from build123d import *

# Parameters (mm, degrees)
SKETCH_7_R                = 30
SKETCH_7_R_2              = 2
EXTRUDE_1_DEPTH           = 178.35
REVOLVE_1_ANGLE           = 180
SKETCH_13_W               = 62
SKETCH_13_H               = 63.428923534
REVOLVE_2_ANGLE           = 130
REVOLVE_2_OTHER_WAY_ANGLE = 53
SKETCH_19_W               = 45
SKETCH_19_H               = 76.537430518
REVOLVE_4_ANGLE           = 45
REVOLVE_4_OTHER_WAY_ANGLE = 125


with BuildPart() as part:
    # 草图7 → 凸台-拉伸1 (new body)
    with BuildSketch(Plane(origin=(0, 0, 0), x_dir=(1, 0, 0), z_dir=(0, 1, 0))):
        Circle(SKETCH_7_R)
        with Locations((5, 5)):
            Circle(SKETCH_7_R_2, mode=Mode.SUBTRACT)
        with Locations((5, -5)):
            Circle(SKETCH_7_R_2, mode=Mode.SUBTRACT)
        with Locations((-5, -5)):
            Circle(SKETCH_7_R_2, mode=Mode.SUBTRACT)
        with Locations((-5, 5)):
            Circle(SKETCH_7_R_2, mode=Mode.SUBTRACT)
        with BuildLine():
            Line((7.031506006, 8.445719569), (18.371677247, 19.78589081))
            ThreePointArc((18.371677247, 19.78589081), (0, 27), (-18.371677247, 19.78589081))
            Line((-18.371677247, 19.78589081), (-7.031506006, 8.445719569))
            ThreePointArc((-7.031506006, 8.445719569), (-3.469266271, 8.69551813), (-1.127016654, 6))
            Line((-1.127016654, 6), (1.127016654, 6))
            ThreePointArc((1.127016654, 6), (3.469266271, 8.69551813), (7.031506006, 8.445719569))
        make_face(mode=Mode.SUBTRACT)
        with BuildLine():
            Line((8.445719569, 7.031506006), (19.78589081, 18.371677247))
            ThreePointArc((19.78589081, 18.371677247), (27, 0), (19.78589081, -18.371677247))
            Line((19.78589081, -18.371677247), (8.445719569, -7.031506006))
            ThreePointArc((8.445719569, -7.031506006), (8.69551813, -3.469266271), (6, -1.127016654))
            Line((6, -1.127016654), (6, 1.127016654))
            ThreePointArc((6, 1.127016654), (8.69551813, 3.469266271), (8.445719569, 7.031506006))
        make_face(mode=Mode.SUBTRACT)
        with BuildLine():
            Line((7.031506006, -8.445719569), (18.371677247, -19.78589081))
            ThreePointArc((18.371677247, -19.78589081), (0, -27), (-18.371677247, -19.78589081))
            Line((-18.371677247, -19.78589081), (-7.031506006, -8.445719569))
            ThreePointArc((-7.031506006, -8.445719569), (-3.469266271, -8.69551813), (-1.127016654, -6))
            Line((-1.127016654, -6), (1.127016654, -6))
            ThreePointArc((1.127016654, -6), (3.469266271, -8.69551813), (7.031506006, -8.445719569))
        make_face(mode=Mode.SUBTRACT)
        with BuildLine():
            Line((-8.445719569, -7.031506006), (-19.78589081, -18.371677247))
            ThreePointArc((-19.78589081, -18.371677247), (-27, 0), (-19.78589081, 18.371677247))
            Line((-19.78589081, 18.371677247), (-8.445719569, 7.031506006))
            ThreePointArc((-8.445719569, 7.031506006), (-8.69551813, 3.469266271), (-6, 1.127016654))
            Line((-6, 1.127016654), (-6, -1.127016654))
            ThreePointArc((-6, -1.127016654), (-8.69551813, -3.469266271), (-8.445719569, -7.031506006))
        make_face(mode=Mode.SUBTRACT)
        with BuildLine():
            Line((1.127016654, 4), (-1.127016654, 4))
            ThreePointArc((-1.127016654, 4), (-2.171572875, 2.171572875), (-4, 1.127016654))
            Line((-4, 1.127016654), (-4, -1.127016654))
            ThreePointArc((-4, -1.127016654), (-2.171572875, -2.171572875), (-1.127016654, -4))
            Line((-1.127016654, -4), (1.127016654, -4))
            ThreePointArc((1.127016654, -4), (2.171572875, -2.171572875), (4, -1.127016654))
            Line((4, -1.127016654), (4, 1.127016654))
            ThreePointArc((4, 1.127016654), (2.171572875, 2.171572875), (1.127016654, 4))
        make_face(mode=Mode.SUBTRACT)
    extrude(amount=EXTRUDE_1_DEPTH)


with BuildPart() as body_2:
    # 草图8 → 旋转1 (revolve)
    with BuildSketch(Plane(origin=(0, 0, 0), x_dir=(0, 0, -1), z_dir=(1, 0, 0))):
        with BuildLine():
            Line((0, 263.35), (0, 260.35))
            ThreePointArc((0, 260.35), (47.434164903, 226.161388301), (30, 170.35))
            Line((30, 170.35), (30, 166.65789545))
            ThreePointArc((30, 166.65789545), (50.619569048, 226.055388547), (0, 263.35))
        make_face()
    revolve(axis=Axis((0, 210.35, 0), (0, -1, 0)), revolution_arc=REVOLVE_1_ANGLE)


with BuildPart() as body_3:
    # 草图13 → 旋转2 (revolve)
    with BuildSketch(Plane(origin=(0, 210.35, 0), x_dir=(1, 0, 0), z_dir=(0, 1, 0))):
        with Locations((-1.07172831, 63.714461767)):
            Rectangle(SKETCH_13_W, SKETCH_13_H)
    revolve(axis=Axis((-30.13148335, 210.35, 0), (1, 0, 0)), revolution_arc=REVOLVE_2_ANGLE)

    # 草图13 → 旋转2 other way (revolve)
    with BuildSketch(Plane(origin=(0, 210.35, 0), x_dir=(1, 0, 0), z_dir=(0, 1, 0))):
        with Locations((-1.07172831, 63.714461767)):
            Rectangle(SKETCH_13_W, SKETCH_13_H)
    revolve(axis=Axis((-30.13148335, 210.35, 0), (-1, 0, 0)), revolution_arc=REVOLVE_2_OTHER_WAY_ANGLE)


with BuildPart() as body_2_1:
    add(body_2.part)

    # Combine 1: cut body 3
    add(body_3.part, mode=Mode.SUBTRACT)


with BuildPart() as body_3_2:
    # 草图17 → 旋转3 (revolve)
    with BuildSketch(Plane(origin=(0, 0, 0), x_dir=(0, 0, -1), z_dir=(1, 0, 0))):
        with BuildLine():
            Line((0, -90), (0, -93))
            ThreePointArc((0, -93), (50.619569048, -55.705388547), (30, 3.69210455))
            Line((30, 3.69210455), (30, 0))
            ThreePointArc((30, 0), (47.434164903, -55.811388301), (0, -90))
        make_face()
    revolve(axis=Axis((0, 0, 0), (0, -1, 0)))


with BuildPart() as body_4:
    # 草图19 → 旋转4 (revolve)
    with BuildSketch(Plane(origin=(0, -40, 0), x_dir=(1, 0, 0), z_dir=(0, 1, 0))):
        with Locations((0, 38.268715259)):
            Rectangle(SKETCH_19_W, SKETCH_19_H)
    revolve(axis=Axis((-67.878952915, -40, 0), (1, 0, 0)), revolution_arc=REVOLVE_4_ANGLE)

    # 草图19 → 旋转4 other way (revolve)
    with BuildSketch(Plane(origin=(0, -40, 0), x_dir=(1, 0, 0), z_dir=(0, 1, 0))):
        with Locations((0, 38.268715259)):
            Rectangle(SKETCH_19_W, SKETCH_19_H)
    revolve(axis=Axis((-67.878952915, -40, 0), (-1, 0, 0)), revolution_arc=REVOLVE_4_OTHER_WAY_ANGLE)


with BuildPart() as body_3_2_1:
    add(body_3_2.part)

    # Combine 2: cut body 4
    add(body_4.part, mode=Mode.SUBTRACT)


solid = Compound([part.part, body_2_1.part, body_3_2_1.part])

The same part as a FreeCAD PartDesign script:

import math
import FreeCAD as App
import Part
import Sketcher
from FreeCAD import Vector

doc = App.newDocument("Part")
params = doc.addObject("Spreadsheet::Sheet", "Params")
for row, (alias, value) in enumerate([
    ("sketch1_diameter", "60 mm"),
    ("sketch1_diameter2", "4 mm"),
    ("sketch1_radius", "4 mm"),
    ("sketch1_radius2", "27 mm"),
    ("pad1_length", "178.35 mm"),
    ("sketch2_radius", "50 mm"),
    ("sketch2_radius2", "53 mm"),
    ("revolution_angle", "180 deg"),
    ("sketch3_width", "62 mm"),
    ("revolution2_angle", "130 deg"),
    ("sketch4_width", "62 mm"),
    ("revolution3_angle", "53 deg"),
    ("sketch5_radius", "53 mm"),
    ("sketch5_radius2", "50 mm"),
    ("revolution4_angle", "360 deg"),
    ("sketch6_width", "45 mm"),
    ("revolution5_angle", "45 deg"),
    ("sketch7_width", "45 mm"),
    ("revolution6_angle", "125 deg"),
], start=1):
    params.set(f"A{row}", alias)
    params.set(f"B{row}", "=" + value)
    params.setAlias(f"B{row}", alias)

body = doc.addObject("PartDesign::Body", "Body")

sketch1 = body.newObject("Sketcher::SketchObject", "Sketch")
sketch1.AttachmentSupport = (doc.getObject("XZ_Plane"), [""])
sketch1.MapMode = "FlatFace"
sketch1.addGeometry([
    Part.Circle(Vector(0, 0, 0), Vector(0, 0, 1), 30),
    Part.ArcOfCircle(Part.Circle(Vector(5, 5, 0), Vector(0, 0, 1), 4), math.radians(59), math.radians(166)),
    Part.LineSegment(Vector(7, 8.4, 0), Vector(18.4, 19.8, 0)),
    Part.ArcOfCircle(Part.Circle(Vector(0, 0, 0), Vector(0, 0, 1), 27), math.radians(47), math.radians(133)),
    Part.LineSegment(Vector(-18.4, 19.8, 0), Vector(-7, 8.4, 0)),
    Part.ArcOfCircle(Part.Circle(Vector(-5, 5, 0), Vector(0, 0, 1), 4), math.radians(14), math.radians(121)),
    Part.LineSegment(Vector(-1.1, 6, 0), Vector(1.1, 6, 0)),
    Part.Circle(Vector(-5, 5, 0), Vector(0, 0, 1), 2),
    Part.Circle(Vector(5, 5, 0), Vector(0, 0, 1), 2),
    Part.ArcOfCircle(Part.Circle(Vector(-5, 5, 0), Vector(0, 0, 1), 4), math.radians(149), math.radians(256)),
    Part.LineSegment(Vector(-8.4, 7, 0), Vector(-19.8, 18.4, 0)),
    Part.ArcOfCircle(Part.Circle(Vector(0, 0, 0), Vector(0, 0, 1), 27), math.radians(137), math.radians(223)),
    Part.LineSegment(Vector(-19.8, -18.4, 0), Vector(-8.4, -7, 0)),
    Part.ArcOfCircle(Part.Circle(Vector(-5, -5, 0), Vector(0, 0, 1), 4), math.radians(104), math.radians(211)),
    Part.LineSegment(Vector(-6, -1.1, 0), Vector(-6, 1.1, 0)),
    Part.LineSegment(Vector(-1.1, -4, 0), Vector(1.1, -4, 0)),
    Part.ArcOfCircle(Part.Circle(Vector(5, -5, 0), Vector(0, 0, 1), 4), math.radians(104), math.radians(166)),
    Part.LineSegment(Vector(4, -1.1, 0), Vector(4, 1.1, 0)),
    Part.ArcOfCircle(Part.Circle(Vector(5, 5, 0), Vector(0, 0, 1), 4), math.radians(-166), math.radians(-104)),
    Part.LineSegment(Vector(1.1, 4, 0), Vector(-1.1, 4, 0)),
    Part.ArcOfCircle(Part.Circle(Vector(-5, 5, 0), Vector(0, 0, 1), 4), math.radians(-76), math.radians(-14)),
    Part.LineSegment(Vector(-4, 1.1, 0), Vector(-4, -1.1, 0)),
    Part.ArcOfCircle(Part.Circle(Vector(-5, -5, 0), Vector(0, 0, 1), 4), math.radians(14), math.radians(76)),
    Part.Circle(Vector(-5, -5, 0), Vector(0, 0, 1), 2),
    Part.LineSegment(Vector(18.4, -19.8, 0), Vector(7, -8.4, 0)),
    Part.ArcOfCircle(Part.Circle(Vector(5, -5, 0), Vector(0, 0, 1), 4), math.radians(-166), math.radians(-59)),
    Part.LineSegment(Vector(1.1, -6, 0), Vector(-1.1, -6, 0)),
    Part.ArcOfCircle(Part.Circle(Vector(-5, -5, 0), Vector(0, 0, 1), 4), math.radians(-121), math.radians(-14)),
    Part.LineSegment(Vector(-7, -8.4, 0), Vector(-18.4, -19.8, 0)),
    Part.ArcOfCircle(Part.Circle(Vector(0, 0, 0), Vector(0, 0, 1), 27), math.radians(-133), math.radians(-47)),
    Part.Circle(Vector(5, -5, 0), Vector(0, 0, 1), 2),
    Part.ArcOfCircle(Part.Circle(Vector(5, -5, 0), Vector(0, 0, 1), 4), math.radians(-31), math.radians(76)),
    Part.LineSegment(Vector(8.4, -7, 0), Vector(19.8, -18.4, 0)),
    Part.ArcOfCircle(Part.Circle(Vector(0, 0, 0), Vector(0, 0, 1), 27), math.radians(-43), math.radians(43)),
    Part.LineSegment(Vector(19.8, 18.4, 0), Vector(8.4, 7, 0)),
    Part.ArcOfCircle(Part.Circle(Vector(5, 5, 0), Vector(0, 0, 1), 4), math.radians(-76), math.radians(31)),
    Part.LineSegment(Vector(6, 1.1, 0), Vector(6, -1.1, 0)),
], False)
sketch1.addConstraint([
    Sketcher.Constraint("Coincident", 1, 1, 2, 1),
    Sketcher.Constraint("Coincident", 2, 2, 3, 1),
    Sketcher.Constraint("Coincident", 3, 2, 4, 1),
    Sketcher.Constraint("Coincident", 4, 2, 5, 2),
    Sketcher.Constraint("Coincident", 5, 1, 6, 1),
    Sketcher.Constraint("Coincident", 6, 2, 1, 2),
    Sketcher.Constraint("Coincident", 9, 1, 10, 1),
    Sketcher.Constraint("Coincident", 10, 2, 11, 1),
    Sketcher.Constraint("Coincident", 11, 2, 12, 1),
    Sketcher.Constraint("Coincident", 12, 2, 13, 2),
    Sketcher.Constraint("Coincident", 13, 1, 14, 1),
    Sketcher.Constraint("Coincident", 14, 2, 9, 2),
    Sketcher.Constraint("Coincident", 15, 2, 16, 2),
    Sketcher.Constraint("Coincident", 16, 1, 17, 1),
    Sketcher.Constraint("Coincident", 17, 2, 18, 2),
    Sketcher.Constraint("Coincident", 18, 1, 19, 1),
    Sketcher.Constraint("Coincident", 19, 2, 20, 2),
    Sketcher.Constraint("Coincident", 20, 1, 21, 1),
    Sketcher.Constraint("Coincident", 21, 2, 22, 2),
    Sketcher.Constraint("Coincident", 22, 1, 15, 1),
    Sketcher.Constraint("Coincident", 24, 2, 25, 2),
    Sketcher.Constraint("Coincident", 25, 1, 26, 1),
    Sketcher.Constraint("Coincident", 26, 2, 27, 2),
    Sketcher.Constraint("Coincident", 27, 1, 28, 1),
    Sketcher.Constraint("Coincident", 28, 2, 29, 1),
    Sketcher.Constraint("Coincident", 29, 2, 24, 1),
    Sketcher.Constraint("Coincident", 31, 1, 32, 1),
    Sketcher.Constraint("Coincident", 32, 2, 33, 1),
    Sketcher.Constraint("Coincident", 33, 2, 34, 1),
    Sketcher.Constraint("Coincident", 34, 2, 35, 2),
    Sketcher.Constraint("Coincident", 35, 1, 36, 1),
    Sketcher.Constraint("Coincident", 36, 2, 31, 2),
    Sketcher.Constraint("Horizontal", 6),
    Sketcher.Constraint("Vertical", 14),
    Sketcher.Constraint("Horizontal", 15),
    Sketcher.Constraint("Vertical", 17),
    Sketcher.Constraint("Horizontal", 19),
    Sketcher.Constraint("Vertical", 21),
    Sketcher.Constraint("Horizontal", 26),
    Sketcher.Constraint("Vertical", 36),
    Sketcher.Constraint("Coincident", 0, 3, -1, 1),
    Sketcher.Constraint("Coincident", 3, 3, -1, 1),
    Sketcher.Constraint("Coincident", 11, 3, -1, 1),
    Sketcher.Constraint("Coincident", 29, 3, -1, 1),
    Sketcher.Constraint("Coincident", 33, 3, -1, 1),
    Sketcher.Constraint("Coincident", 7, 3, 5, 3),
    Sketcher.Constraint("Coincident", 8, 3, 1, 3),
    Sketcher.Constraint("Coincident", 9, 3, 5, 3),
    Sketcher.Constraint("Coincident", 18, 3, 1, 3),
    Sketcher.Constraint("Coincident", 20, 3, 5, 3),
    Sketcher.Constraint("Coincident", 22, 3, 13, 3),
    Sketcher.Constraint("Coincident", 23, 3, 13, 3),
    Sketcher.Constraint("Coincident", 25, 3, 16, 3),
    Sketcher.Constraint("Coincident", 27, 3, 13, 3),
    Sketcher.Constraint("Coincident", 30, 3, 16, 3),
    Sketcher.Constraint("Coincident", 31, 3, 16, 3),
    Sketcher.Constraint("Coincident", 35, 3, 1, 3),
    Sketcher.Constraint("Equal", 1, 5),
    Sketcher.Constraint("Equal", 7, 8),
    Sketcher.Constraint("Equal", 5, 9),
    Sketcher.Constraint("Equal", 3, 11),
    Sketcher.Constraint("Equal", 9, 13),
    Sketcher.Constraint("Equal", 13, 16),
    Sketcher.Constraint("Equal", 16, 18),
    Sketcher.Constraint("Equal", 18, 20),
    Sketcher.Constraint("Equal", 20, 22),
    Sketcher.Constraint("Equal", 8, 23),
    Sketcher.Constraint("Equal", 22, 25),
    Sketcher.Constraint("Equal", 25, 27),
    Sketcher.Constraint("Equal", 11, 29),
    Sketcher.Constraint("Equal", 23, 30),
    Sketcher.Constraint("Equal", 27, 31),
    Sketcher.Constraint("Equal", 29, 33),
    Sketcher.Constraint("Equal", 31, 35),
    Sketcher.Constraint("Symmetric", 1, 3, 13, 3, -1, 1),
    Sketcher.Constraint("Symmetric", 5, 3, 16, 3, -1, 1),
    Sketcher.Constraint("Symmetric", 1, 3, 5, 3, -2),
    Sketcher.Constraint("Perpendicular", 2, 4),
    Sketcher.Constraint("Parallel", 4, 10),
    Sketcher.Constraint("Perpendicular", 10, 12),
    Sketcher.Constraint("Perpendicular", 12, 24),
    Sketcher.Constraint("Perpendicular", 24, 28),
    Sketcher.Constraint("Perpendicular", 28, 32),
    Sketcher.Constraint("Perpendicular", 32, 34),
    Sketcher.Constraint("Horizontal", 2, 2, 3, 2),
    Sketcher.Constraint("Horizontal", 1, 1, 4, 2),
    Sketcher.Constraint("Horizontal", 13, 1, 16, 1),
    Sketcher.Constraint("Horizontal", 17, 2, 20, 1),
    Sketcher.Constraint("Horizontal", 24, 2, 27, 1),
    Sketcher.Constraint("Horizontal", 12, 2, 31, 1),
    Sketcher.Constraint("Horizontal", 10, 2, 33, 2),
    Sketcher.Constraint("Horizontal", 20, 1, 35, 1),
    Sketcher.Constraint("Vertical", 10, 2, 11, 2),
    Sketcher.Constraint("Vertical", 6, 2, 15, 2),
    Sketcher.Constraint("Vertical", 15, 2, 18, 1),
    Sketcher.Constraint("Vertical", 1, 1, 24, 2),
    Sketcher.Constraint("Vertical", 18, 1, 25, 1),
    Sketcher.Constraint("Equal", 26, 14),
    Sketcher.Constraint("Equal", 4, 10),
    Sketcher.Constraint("Diameter", 0, 60.0),
    Sketcher.Constraint("Diameter", 7, 4.0),
    Sketcher.Constraint("Radius", 1, 4.0),
    Sketcher.Constraint("Radius", 3, 27.0),
    Sketcher.Constraint("DistanceX", -1, 1, 1, 3, 5.0),
    Sketcher.Constraint("DistanceY", -1, 1, 1, 3, 5.0),
    Sketcher.Constraint("DistanceY", -1, 1, 5, 1, 6.0),
    Sketcher.Constraint("DistanceY", -1, 1, 1, 1, 8.44572),
])
sketch1.setExpression("Constraints[99]", "Params.sketch1_diameter")
sketch1.setExpression("Constraints[100]", "Params.sketch1_diameter2")
sketch1.setExpression("Constraints[101]", "Params.sketch1_radius")
sketch1.setExpression("Constraints[102]", "Params.sketch1_radius2")
pad1 = body.newObject("PartDesign::Pad", "Pad")
pad1.Profile = sketch1
pad1.setExpression("Length", "Params.pad1_length")
pad1.Reversed = True
body2 = doc.addObject("PartDesign::Body", "Body001")

sketch2 = body2.newObject("Sketcher::SketchObject", "Sketch001")
sketch2.AttachmentSupport = (doc.getObject("YZ_Plane001"), [""])
sketch2.MapMode = "FlatFace"
sketch2.addGeometry([
    Part.LineSegment(Vector(263.4, 0, 0), Vector(260.4, 0, 0)),
    Part.ArcOfCircle(Part.Circle(Vector(210.3, 0, 0), Vector(0, 0, 1), 50), math.radians(-143), math.radians(0)),
    Part.LineSegment(Vector(170.3, -30, 0), Vector(166.7, -30, 0)),
    Part.ArcOfCircle(Part.Circle(Vector(210.3, 0, 0), Vector(0, 0, 1), 53), math.radians(-146), math.radians(0)),
], False)
sketch2.addConstraint([
    Sketcher.Constraint("Coincident", 0, 2, 1, 2),
    Sketcher.Constraint("Coincident", 1, 1, 2, 1),
    Sketcher.Constraint("Coincident", 2, 2, 3, 1),
    Sketcher.Constraint("Coincident", 3, 2, 0, 1),
    Sketcher.Constraint("Horizontal", 0),
    Sketcher.Constraint("Horizontal", 2),
    Sketcher.Constraint("Coincident", 3, 3, 1, 3),
    Sketcher.Constraint("PointOnObject", 1, 3, -1),
    Sketcher.Constraint("PointOnObject", 0, 2, -1),
    Sketcher.Constraint("Radius", 1, 50.0),
    Sketcher.Constraint("Radius", 3, 53.0),
    Sketcher.Constraint("DistanceY", 1, 1, -1, 1, 30.0),
    Sketcher.Constraint("DistanceX", -1, 1, 1, 3, 210.35),
])
sketch2.setExpression("Constraints[9]", "Params.sketch2_radius")
sketch2.setExpression("Constraints[10]", "Params.sketch2_radius2")
revolution = body2.newObject("PartDesign::Revolution", "Revolution")
revolution.Profile = sketch2
revolution.ReferenceAxis = (sketch2, ["H_Axis"])
revolution.setExpression("Angle", "Params.revolution_angle")
revolution.Reversed = True
body3 = doc.addObject("PartDesign::Body", "Body002")

sketch3 = body3.newObject("Sketcher::SketchObject", "Sketch002")
sketch3.AttachmentSupport = (doc.getObject("XZ_Plane002"), [""])
sketch3.MapMode = "FlatFace"
sketch3.AttachmentOffset = App.Placement(Vector(0, 0, -210.35), App.Rotation())
sketch3.addGeometry([
    Part.LineSegment(Vector(-32, -95, 0), Vector(-32, -32, 0)),
    Part.LineSegment(Vector(-32, -32, 0), Vector(30, -32, 0)),
    Part.LineSegment(Vector(30, -32, 0), Vector(30, -95, 0)),
    Part.LineSegment(Vector(30, -95, 0), Vector(-32, -95, 0)),
], False)
sketch3.addConstraint([
    Sketcher.Constraint("Coincident", 0, 2, 1, 1),
    Sketcher.Constraint("Coincident", 1, 2, 2, 1),
    Sketcher.Constraint("Coincident", 2, 2, 3, 1),
    Sketcher.Constraint("Coincident", 3, 2, 0, 1),
    Sketcher.Constraint("Vertical", 0),
    Sketcher.Constraint("Horizontal", 1),
    Sketcher.Constraint("Vertical", 2),
    Sketcher.Constraint("Horizontal", 3),
    Sketcher.Constraint("DistanceX", 1, 1, 1, 2, 62.0),
    Sketcher.Constraint("DistanceY", 0, 2, -1, 1, 32.0),
    Sketcher.Constraint("DistanceY", 0, 1, 0, 2, 63.428924),
    Sketcher.Constraint("DistanceX", 0, 2, -1, 1, 32.071728),
])
sketch3.setExpression("Constraints[8]", "Params.sketch3_width")
revolution2 = body3.newObject("PartDesign::Revolution", "Revolution001")
revolution2.Profile = sketch3
revolution2.ReferenceAxis = (sketch3, ["H_Axis"])
revolution2.setExpression("Angle", "Params.revolution2_angle")

sketch4 = body3.newObject("Sketcher::SketchObject", "Sketch003")
sketch4.AttachmentSupport = (doc.getObject("XZ_Plane002"), [""])
sketch4.MapMode = "FlatFace"
sketch4.AttachmentOffset = App.Placement(Vector(0, 0, -210.35), App.Rotation())
sketch4.addGeometry([
    Part.LineSegment(Vector(-32, -95, 0), Vector(-32, -32, 0)),
    Part.LineSegment(Vector(-32, -32, 0), Vector(30, -32, 0)),
    Part.LineSegment(Vector(30, -32, 0), Vector(30, -95, 0)),
    Part.LineSegment(Vector(30, -95, 0), Vector(-32, -95, 0)),
], False)
sketch4.addConstraint([
    Sketcher.Constraint("Coincident", 0, 2, 1, 1),
    Sketcher.Constraint("Coincident", 1, 2, 2, 1),
    Sketcher.Constraint("Coincident", 2, 2, 3, 1),
    Sketcher.Constraint("Coincident", 3, 2, 0, 1),
    Sketcher.Constraint("Vertical", 0),
    Sketcher.Constraint("Horizontal", 1),
    Sketcher.Constraint("Vertical", 2),
    Sketcher.Constraint("Horizontal", 3),
    Sketcher.Constraint("DistanceX", 1, 1, 1, 2, 62.0),
    Sketcher.Constraint("DistanceY", 0, 2, -1, 1, 32.0),
    Sketcher.Constraint("DistanceY", 0, 1, 0, 2, 63.428924),
    Sketcher.Constraint("DistanceX", 0, 2, -1, 1, 32.071728),
])
sketch4.setExpression("Constraints[8]", "Params.sketch4_width")
revolution3 = body3.newObject("PartDesign::Revolution", "Revolution002")
revolution3.Profile = sketch4
revolution3.ReferenceAxis = (sketch4, ["H_Axis"])
revolution3.setExpression("Angle", "Params.revolution3_angle")
revolution3.Reversed = True
doc.recompute()

boolean = body2.newObject("PartDesign::Boolean", "Boolean")
boolean.Type = "Cut"
boolean.addObjects([body3])
body4 = doc.addObject("PartDesign::Body", "Body003")

sketch5 = body4.newObject("Sketcher::SketchObject", "Sketch004")
sketch5.AttachmentSupport = (doc.getObject("YZ_Plane003"), [""])
sketch5.MapMode = "FlatFace"
sketch5.addGeometry([
    Part.LineSegment(Vector(-90, 0, 0), Vector(-93, 0, 0)),
    Part.ArcOfCircle(Part.Circle(Vector(-40, 0, 0), Vector(0, 0, 1), 53), math.radians(180), math.radians(326)),
    Part.LineSegment(Vector(3.7, -30, 0), Vector(0, -30, 0)),
    Part.ArcOfCircle(Part.Circle(Vector(-40, 0, 0), Vector(0, 0, 1), 50), math.radians(180), math.radians(323)),
], False)
sketch5.addConstraint([
    Sketcher.Constraint("Coincident", 0, 2, 1, 1),
    Sketcher.Constraint("Coincident", 1, 2, 2, 1),
    Sketcher.Constraint("Coincident", 2, 2, 3, 2),
    Sketcher.Constraint("Coincident", 3, 1, 0, 1),
    Sketcher.Constraint("Horizontal", 0),
    Sketcher.Constraint("Horizontal", 2),
    Sketcher.Constraint("Coincident", 3, 3, 1, 3),
    Sketcher.Constraint("PointOnObject", 1, 3, -1),
    Sketcher.Constraint("PointOnObject", 0, 2, -1),
    Sketcher.Constraint("PointOnObject", 2, 2, -2),
    Sketcher.Constraint("Radius", 1, 53.0),
    Sketcher.Constraint("Radius", 3, 50.0),
    Sketcher.Constraint("DistanceX", 1, 3, -1, 1, 40.0),
])
sketch5.setExpression("Constraints[10]", "Params.sketch5_radius")
sketch5.setExpression("Constraints[11]", "Params.sketch5_radius2")
revolution4 = body4.newObject("PartDesign::Revolution", "Revolution003")
revolution4.Profile = sketch5
revolution4.ReferenceAxis = (sketch5, ["H_Axis"])
revolution4.setExpression("Angle", "Params.revolution4_angle")
body5 = doc.addObject("PartDesign::Body", "Body004")

sketch6 = body5.newObject("Sketcher::SketchObject", "Sketch005")
sketch6.AttachmentSupport = (doc.getObject("XZ_Plane004"), [""])
sketch6.MapMode = "FlatFace"
sketch6.AttachmentOffset = App.Placement(Vector(0, 0, 40), App.Rotation())
sketch6.addGeometry([
    Part.LineSegment(Vector(-22, -77, 0), Vector(-22, 0, 0)),
    Part.LineSegment(Vector(-22, 0, 0), Vector(22, 0, 0)),
    Part.LineSegment(Vector(22, 0, 0), Vector(22, -77, 0)),
    Part.LineSegment(Vector(22, -77, 0), Vector(-22, -77, 0)),
], False)
sketch6.addConstraint([
    Sketcher.Constraint("Coincident", 0, 2, 1, 1),
    Sketcher.Constraint("Coincident", 1, 2, 2, 1),
    Sketcher.Constraint("Coincident", 2, 2, 3, 1),
    Sketcher.Constraint("Coincident", 3, 2, 0, 1),
    Sketcher.Constraint("Vertical", 0),
    Sketcher.Constraint("Horizontal", 1),
    Sketcher.Constraint("Vertical", 2),
    Sketcher.Constraint("Horizontal", 3),
    Sketcher.Constraint("Symmetric", 0, 2, 1, 2, -1, 1),
    Sketcher.Constraint("DistanceX", 1, 1, 1, 2, 45.0),
    Sketcher.Constraint("DistanceY", 0, 1, 0, 2, 76.537431),
])
sketch6.setExpression("Constraints[9]", "Params.sketch6_width")
revolution5 = body5.newObject("PartDesign::Revolution", "Revolution004")
revolution5.Profile = sketch6
revolution5.ReferenceAxis = (sketch6, ["H_Axis"])
revolution5.setExpression("Angle", "Params.revolution5_angle")

sketch7 = body5.newObject("Sketcher::SketchObject", "Sketch006")
sketch7.AttachmentSupport = (doc.getObject("XZ_Plane004"), [""])
sketch7.MapMode = "FlatFace"
sketch7.AttachmentOffset = App.Placement(Vector(0, 0, 40), App.Rotation())
sketch7.addGeometry([
    Part.LineSegment(Vector(-22, -77, 0), Vector(-22, 0, 0)),
    Part.LineSegment(Vector(-22, 0, 0), Vector(22, 0, 0)),
    Part.LineSegment(Vector(22, 0, 0), Vector(22, -77, 0)),
    Part.LineSegment(Vector(22, -77, 0), Vector(-22, -77, 0)),
], False)
sketch7.addConstraint([
    Sketcher.Constraint("Coincident", 0, 2, 1, 1),
    Sketcher.Constraint("Coincident", 1, 2, 2, 1),
    Sketcher.Constraint("Coincident", 2, 2, 3, 1),
    Sketcher.Constraint("Coincident", 3, 2, 0, 1),
    Sketcher.Constraint("Vertical", 0),
    Sketcher.Constraint("Horizontal", 1),
    Sketcher.Constraint("Vertical", 2),
    Sketcher.Constraint("Horizontal", 3),
    Sketcher.Constraint("Symmetric", 0, 2, 1, 2, -1, 1),
    Sketcher.Constraint("DistanceX", 1, 1, 1, 2, 45.0),
    Sketcher.Constraint("DistanceY", 0, 1, 0, 2, 76.537431),
])
sketch7.setExpression("Constraints[9]", "Params.sketch7_width")
revolution6 = body5.newObject("PartDesign::Revolution", "Revolution005")
revolution6.Profile = sketch7
revolution6.ReferenceAxis = (sketch7, ["H_Axis"])
revolution6.setExpression("Angle", "Params.revolution6_angle")
revolution6.Reversed = True
doc.recompute()

boolean2 = body4.newObject("PartDesign::Boolean", "Boolean001")
boolean2.Type = "Cut"
boolean2.addObjects([body5])

doc.recompute()
